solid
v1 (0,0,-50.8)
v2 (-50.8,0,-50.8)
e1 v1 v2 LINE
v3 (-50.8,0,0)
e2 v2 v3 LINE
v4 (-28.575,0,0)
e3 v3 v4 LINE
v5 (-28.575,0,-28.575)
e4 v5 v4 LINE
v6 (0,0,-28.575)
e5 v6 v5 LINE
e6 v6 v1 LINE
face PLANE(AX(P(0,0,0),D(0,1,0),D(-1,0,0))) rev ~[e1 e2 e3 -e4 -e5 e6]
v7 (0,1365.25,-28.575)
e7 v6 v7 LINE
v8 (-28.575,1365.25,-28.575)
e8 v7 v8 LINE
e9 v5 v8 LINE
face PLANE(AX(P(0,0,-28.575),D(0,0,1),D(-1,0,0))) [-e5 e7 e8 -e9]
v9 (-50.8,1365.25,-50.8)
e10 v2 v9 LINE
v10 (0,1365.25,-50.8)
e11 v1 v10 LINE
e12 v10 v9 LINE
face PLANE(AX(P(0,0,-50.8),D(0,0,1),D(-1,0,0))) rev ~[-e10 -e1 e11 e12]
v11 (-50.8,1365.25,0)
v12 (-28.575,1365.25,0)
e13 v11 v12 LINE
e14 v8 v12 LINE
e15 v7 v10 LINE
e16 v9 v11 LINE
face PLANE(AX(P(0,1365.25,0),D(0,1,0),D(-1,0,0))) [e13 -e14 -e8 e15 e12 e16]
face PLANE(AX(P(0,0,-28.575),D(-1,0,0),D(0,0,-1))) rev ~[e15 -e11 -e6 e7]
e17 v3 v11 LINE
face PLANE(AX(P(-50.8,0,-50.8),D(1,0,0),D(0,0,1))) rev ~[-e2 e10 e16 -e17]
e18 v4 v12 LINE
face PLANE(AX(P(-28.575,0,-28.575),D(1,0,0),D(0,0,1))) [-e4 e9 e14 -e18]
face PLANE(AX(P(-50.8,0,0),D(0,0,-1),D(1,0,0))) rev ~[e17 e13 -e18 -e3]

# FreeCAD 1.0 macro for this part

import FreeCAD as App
import Part
import Sketcher
from FreeCAD import Vector
Q = App.Units.Quantity

doc = App.newDocument("Part")
body = doc.addObject("PartDesign::Body", "Body")

sketch1 = body.newObject("Sketcher::SketchObject", "Sketch")
sketch1.AttachmentSupport = (doc.getObject("XZ_Plane"), [""])
sketch1.MapMode = "FlatFace"
sketch1.addGeometry([
    Part.LineSegment(Vector(0, -29, 0), Vector(0, -51, 0)),
    Part.LineSegment(Vector(0, -51, 0), Vector(-51, -51, 0)),
    Part.LineSegment(Vector(-51, -51, 0), Vector(-51, 0, 0)),
    Part.LineSegment(Vector(-51, 0, 0), Vector(-29, 0, 0)),
    Part.LineSegment(Vector(-29, 0, 0), Vector(-29, -29, 0)),
    Part.LineSegment(Vector(-29, -29, 0), Vector(0, -29, 0)),
], False)
sketch1.addConstraint([
    Sketcher.Constraint("Coincident", 0, 2, 1, 1),
    Sketcher.Constraint("Coincident", 1, 2, 2, 1),
    Sketcher.Constraint("Coincident", 2, 2, 3, 1),
    Sketcher.Constraint("Coincident", 3, 2, 4, 1),
    Sketcher.Constraint("Coincident", 4, 2, 5, 1),
    Sketcher.Constraint("Coincident", 5, 2, 0, 1),
    Sketcher.Constraint("Vertical", 0),
    Sketcher.Constraint("Horizontal", 1),
    Sketcher.Constraint("Vertical", 2),
    Sketcher.Constraint("Horizontal", 3),
    Sketcher.Constraint("Vertical", 4),
    Sketcher.Constraint("Horizontal", 5),
    Sketcher.Constraint("PointOnObject", 0, 2, -2),
    Sketcher.Constraint("PointOnObject", 2, 2, -1),
    Sketcher.Constraint("Equal", 3, 0),
    Sketcher.Constraint("Equal", 1, 2),
    Sketcher.Constraint("DistanceX", 1, 2, 1, 1, Q("2 in")),
    Sketcher.Constraint("DistanceX", 3, 1, 3, 2, Q("0.875 in")),
])
pad1 = body.newObject("PartDesign::Pad", "Pad")
pad1.Profile = sketch1
pad1.Length = Q("53.75 in")
pad1.Reversed = True

doc.recompute()
